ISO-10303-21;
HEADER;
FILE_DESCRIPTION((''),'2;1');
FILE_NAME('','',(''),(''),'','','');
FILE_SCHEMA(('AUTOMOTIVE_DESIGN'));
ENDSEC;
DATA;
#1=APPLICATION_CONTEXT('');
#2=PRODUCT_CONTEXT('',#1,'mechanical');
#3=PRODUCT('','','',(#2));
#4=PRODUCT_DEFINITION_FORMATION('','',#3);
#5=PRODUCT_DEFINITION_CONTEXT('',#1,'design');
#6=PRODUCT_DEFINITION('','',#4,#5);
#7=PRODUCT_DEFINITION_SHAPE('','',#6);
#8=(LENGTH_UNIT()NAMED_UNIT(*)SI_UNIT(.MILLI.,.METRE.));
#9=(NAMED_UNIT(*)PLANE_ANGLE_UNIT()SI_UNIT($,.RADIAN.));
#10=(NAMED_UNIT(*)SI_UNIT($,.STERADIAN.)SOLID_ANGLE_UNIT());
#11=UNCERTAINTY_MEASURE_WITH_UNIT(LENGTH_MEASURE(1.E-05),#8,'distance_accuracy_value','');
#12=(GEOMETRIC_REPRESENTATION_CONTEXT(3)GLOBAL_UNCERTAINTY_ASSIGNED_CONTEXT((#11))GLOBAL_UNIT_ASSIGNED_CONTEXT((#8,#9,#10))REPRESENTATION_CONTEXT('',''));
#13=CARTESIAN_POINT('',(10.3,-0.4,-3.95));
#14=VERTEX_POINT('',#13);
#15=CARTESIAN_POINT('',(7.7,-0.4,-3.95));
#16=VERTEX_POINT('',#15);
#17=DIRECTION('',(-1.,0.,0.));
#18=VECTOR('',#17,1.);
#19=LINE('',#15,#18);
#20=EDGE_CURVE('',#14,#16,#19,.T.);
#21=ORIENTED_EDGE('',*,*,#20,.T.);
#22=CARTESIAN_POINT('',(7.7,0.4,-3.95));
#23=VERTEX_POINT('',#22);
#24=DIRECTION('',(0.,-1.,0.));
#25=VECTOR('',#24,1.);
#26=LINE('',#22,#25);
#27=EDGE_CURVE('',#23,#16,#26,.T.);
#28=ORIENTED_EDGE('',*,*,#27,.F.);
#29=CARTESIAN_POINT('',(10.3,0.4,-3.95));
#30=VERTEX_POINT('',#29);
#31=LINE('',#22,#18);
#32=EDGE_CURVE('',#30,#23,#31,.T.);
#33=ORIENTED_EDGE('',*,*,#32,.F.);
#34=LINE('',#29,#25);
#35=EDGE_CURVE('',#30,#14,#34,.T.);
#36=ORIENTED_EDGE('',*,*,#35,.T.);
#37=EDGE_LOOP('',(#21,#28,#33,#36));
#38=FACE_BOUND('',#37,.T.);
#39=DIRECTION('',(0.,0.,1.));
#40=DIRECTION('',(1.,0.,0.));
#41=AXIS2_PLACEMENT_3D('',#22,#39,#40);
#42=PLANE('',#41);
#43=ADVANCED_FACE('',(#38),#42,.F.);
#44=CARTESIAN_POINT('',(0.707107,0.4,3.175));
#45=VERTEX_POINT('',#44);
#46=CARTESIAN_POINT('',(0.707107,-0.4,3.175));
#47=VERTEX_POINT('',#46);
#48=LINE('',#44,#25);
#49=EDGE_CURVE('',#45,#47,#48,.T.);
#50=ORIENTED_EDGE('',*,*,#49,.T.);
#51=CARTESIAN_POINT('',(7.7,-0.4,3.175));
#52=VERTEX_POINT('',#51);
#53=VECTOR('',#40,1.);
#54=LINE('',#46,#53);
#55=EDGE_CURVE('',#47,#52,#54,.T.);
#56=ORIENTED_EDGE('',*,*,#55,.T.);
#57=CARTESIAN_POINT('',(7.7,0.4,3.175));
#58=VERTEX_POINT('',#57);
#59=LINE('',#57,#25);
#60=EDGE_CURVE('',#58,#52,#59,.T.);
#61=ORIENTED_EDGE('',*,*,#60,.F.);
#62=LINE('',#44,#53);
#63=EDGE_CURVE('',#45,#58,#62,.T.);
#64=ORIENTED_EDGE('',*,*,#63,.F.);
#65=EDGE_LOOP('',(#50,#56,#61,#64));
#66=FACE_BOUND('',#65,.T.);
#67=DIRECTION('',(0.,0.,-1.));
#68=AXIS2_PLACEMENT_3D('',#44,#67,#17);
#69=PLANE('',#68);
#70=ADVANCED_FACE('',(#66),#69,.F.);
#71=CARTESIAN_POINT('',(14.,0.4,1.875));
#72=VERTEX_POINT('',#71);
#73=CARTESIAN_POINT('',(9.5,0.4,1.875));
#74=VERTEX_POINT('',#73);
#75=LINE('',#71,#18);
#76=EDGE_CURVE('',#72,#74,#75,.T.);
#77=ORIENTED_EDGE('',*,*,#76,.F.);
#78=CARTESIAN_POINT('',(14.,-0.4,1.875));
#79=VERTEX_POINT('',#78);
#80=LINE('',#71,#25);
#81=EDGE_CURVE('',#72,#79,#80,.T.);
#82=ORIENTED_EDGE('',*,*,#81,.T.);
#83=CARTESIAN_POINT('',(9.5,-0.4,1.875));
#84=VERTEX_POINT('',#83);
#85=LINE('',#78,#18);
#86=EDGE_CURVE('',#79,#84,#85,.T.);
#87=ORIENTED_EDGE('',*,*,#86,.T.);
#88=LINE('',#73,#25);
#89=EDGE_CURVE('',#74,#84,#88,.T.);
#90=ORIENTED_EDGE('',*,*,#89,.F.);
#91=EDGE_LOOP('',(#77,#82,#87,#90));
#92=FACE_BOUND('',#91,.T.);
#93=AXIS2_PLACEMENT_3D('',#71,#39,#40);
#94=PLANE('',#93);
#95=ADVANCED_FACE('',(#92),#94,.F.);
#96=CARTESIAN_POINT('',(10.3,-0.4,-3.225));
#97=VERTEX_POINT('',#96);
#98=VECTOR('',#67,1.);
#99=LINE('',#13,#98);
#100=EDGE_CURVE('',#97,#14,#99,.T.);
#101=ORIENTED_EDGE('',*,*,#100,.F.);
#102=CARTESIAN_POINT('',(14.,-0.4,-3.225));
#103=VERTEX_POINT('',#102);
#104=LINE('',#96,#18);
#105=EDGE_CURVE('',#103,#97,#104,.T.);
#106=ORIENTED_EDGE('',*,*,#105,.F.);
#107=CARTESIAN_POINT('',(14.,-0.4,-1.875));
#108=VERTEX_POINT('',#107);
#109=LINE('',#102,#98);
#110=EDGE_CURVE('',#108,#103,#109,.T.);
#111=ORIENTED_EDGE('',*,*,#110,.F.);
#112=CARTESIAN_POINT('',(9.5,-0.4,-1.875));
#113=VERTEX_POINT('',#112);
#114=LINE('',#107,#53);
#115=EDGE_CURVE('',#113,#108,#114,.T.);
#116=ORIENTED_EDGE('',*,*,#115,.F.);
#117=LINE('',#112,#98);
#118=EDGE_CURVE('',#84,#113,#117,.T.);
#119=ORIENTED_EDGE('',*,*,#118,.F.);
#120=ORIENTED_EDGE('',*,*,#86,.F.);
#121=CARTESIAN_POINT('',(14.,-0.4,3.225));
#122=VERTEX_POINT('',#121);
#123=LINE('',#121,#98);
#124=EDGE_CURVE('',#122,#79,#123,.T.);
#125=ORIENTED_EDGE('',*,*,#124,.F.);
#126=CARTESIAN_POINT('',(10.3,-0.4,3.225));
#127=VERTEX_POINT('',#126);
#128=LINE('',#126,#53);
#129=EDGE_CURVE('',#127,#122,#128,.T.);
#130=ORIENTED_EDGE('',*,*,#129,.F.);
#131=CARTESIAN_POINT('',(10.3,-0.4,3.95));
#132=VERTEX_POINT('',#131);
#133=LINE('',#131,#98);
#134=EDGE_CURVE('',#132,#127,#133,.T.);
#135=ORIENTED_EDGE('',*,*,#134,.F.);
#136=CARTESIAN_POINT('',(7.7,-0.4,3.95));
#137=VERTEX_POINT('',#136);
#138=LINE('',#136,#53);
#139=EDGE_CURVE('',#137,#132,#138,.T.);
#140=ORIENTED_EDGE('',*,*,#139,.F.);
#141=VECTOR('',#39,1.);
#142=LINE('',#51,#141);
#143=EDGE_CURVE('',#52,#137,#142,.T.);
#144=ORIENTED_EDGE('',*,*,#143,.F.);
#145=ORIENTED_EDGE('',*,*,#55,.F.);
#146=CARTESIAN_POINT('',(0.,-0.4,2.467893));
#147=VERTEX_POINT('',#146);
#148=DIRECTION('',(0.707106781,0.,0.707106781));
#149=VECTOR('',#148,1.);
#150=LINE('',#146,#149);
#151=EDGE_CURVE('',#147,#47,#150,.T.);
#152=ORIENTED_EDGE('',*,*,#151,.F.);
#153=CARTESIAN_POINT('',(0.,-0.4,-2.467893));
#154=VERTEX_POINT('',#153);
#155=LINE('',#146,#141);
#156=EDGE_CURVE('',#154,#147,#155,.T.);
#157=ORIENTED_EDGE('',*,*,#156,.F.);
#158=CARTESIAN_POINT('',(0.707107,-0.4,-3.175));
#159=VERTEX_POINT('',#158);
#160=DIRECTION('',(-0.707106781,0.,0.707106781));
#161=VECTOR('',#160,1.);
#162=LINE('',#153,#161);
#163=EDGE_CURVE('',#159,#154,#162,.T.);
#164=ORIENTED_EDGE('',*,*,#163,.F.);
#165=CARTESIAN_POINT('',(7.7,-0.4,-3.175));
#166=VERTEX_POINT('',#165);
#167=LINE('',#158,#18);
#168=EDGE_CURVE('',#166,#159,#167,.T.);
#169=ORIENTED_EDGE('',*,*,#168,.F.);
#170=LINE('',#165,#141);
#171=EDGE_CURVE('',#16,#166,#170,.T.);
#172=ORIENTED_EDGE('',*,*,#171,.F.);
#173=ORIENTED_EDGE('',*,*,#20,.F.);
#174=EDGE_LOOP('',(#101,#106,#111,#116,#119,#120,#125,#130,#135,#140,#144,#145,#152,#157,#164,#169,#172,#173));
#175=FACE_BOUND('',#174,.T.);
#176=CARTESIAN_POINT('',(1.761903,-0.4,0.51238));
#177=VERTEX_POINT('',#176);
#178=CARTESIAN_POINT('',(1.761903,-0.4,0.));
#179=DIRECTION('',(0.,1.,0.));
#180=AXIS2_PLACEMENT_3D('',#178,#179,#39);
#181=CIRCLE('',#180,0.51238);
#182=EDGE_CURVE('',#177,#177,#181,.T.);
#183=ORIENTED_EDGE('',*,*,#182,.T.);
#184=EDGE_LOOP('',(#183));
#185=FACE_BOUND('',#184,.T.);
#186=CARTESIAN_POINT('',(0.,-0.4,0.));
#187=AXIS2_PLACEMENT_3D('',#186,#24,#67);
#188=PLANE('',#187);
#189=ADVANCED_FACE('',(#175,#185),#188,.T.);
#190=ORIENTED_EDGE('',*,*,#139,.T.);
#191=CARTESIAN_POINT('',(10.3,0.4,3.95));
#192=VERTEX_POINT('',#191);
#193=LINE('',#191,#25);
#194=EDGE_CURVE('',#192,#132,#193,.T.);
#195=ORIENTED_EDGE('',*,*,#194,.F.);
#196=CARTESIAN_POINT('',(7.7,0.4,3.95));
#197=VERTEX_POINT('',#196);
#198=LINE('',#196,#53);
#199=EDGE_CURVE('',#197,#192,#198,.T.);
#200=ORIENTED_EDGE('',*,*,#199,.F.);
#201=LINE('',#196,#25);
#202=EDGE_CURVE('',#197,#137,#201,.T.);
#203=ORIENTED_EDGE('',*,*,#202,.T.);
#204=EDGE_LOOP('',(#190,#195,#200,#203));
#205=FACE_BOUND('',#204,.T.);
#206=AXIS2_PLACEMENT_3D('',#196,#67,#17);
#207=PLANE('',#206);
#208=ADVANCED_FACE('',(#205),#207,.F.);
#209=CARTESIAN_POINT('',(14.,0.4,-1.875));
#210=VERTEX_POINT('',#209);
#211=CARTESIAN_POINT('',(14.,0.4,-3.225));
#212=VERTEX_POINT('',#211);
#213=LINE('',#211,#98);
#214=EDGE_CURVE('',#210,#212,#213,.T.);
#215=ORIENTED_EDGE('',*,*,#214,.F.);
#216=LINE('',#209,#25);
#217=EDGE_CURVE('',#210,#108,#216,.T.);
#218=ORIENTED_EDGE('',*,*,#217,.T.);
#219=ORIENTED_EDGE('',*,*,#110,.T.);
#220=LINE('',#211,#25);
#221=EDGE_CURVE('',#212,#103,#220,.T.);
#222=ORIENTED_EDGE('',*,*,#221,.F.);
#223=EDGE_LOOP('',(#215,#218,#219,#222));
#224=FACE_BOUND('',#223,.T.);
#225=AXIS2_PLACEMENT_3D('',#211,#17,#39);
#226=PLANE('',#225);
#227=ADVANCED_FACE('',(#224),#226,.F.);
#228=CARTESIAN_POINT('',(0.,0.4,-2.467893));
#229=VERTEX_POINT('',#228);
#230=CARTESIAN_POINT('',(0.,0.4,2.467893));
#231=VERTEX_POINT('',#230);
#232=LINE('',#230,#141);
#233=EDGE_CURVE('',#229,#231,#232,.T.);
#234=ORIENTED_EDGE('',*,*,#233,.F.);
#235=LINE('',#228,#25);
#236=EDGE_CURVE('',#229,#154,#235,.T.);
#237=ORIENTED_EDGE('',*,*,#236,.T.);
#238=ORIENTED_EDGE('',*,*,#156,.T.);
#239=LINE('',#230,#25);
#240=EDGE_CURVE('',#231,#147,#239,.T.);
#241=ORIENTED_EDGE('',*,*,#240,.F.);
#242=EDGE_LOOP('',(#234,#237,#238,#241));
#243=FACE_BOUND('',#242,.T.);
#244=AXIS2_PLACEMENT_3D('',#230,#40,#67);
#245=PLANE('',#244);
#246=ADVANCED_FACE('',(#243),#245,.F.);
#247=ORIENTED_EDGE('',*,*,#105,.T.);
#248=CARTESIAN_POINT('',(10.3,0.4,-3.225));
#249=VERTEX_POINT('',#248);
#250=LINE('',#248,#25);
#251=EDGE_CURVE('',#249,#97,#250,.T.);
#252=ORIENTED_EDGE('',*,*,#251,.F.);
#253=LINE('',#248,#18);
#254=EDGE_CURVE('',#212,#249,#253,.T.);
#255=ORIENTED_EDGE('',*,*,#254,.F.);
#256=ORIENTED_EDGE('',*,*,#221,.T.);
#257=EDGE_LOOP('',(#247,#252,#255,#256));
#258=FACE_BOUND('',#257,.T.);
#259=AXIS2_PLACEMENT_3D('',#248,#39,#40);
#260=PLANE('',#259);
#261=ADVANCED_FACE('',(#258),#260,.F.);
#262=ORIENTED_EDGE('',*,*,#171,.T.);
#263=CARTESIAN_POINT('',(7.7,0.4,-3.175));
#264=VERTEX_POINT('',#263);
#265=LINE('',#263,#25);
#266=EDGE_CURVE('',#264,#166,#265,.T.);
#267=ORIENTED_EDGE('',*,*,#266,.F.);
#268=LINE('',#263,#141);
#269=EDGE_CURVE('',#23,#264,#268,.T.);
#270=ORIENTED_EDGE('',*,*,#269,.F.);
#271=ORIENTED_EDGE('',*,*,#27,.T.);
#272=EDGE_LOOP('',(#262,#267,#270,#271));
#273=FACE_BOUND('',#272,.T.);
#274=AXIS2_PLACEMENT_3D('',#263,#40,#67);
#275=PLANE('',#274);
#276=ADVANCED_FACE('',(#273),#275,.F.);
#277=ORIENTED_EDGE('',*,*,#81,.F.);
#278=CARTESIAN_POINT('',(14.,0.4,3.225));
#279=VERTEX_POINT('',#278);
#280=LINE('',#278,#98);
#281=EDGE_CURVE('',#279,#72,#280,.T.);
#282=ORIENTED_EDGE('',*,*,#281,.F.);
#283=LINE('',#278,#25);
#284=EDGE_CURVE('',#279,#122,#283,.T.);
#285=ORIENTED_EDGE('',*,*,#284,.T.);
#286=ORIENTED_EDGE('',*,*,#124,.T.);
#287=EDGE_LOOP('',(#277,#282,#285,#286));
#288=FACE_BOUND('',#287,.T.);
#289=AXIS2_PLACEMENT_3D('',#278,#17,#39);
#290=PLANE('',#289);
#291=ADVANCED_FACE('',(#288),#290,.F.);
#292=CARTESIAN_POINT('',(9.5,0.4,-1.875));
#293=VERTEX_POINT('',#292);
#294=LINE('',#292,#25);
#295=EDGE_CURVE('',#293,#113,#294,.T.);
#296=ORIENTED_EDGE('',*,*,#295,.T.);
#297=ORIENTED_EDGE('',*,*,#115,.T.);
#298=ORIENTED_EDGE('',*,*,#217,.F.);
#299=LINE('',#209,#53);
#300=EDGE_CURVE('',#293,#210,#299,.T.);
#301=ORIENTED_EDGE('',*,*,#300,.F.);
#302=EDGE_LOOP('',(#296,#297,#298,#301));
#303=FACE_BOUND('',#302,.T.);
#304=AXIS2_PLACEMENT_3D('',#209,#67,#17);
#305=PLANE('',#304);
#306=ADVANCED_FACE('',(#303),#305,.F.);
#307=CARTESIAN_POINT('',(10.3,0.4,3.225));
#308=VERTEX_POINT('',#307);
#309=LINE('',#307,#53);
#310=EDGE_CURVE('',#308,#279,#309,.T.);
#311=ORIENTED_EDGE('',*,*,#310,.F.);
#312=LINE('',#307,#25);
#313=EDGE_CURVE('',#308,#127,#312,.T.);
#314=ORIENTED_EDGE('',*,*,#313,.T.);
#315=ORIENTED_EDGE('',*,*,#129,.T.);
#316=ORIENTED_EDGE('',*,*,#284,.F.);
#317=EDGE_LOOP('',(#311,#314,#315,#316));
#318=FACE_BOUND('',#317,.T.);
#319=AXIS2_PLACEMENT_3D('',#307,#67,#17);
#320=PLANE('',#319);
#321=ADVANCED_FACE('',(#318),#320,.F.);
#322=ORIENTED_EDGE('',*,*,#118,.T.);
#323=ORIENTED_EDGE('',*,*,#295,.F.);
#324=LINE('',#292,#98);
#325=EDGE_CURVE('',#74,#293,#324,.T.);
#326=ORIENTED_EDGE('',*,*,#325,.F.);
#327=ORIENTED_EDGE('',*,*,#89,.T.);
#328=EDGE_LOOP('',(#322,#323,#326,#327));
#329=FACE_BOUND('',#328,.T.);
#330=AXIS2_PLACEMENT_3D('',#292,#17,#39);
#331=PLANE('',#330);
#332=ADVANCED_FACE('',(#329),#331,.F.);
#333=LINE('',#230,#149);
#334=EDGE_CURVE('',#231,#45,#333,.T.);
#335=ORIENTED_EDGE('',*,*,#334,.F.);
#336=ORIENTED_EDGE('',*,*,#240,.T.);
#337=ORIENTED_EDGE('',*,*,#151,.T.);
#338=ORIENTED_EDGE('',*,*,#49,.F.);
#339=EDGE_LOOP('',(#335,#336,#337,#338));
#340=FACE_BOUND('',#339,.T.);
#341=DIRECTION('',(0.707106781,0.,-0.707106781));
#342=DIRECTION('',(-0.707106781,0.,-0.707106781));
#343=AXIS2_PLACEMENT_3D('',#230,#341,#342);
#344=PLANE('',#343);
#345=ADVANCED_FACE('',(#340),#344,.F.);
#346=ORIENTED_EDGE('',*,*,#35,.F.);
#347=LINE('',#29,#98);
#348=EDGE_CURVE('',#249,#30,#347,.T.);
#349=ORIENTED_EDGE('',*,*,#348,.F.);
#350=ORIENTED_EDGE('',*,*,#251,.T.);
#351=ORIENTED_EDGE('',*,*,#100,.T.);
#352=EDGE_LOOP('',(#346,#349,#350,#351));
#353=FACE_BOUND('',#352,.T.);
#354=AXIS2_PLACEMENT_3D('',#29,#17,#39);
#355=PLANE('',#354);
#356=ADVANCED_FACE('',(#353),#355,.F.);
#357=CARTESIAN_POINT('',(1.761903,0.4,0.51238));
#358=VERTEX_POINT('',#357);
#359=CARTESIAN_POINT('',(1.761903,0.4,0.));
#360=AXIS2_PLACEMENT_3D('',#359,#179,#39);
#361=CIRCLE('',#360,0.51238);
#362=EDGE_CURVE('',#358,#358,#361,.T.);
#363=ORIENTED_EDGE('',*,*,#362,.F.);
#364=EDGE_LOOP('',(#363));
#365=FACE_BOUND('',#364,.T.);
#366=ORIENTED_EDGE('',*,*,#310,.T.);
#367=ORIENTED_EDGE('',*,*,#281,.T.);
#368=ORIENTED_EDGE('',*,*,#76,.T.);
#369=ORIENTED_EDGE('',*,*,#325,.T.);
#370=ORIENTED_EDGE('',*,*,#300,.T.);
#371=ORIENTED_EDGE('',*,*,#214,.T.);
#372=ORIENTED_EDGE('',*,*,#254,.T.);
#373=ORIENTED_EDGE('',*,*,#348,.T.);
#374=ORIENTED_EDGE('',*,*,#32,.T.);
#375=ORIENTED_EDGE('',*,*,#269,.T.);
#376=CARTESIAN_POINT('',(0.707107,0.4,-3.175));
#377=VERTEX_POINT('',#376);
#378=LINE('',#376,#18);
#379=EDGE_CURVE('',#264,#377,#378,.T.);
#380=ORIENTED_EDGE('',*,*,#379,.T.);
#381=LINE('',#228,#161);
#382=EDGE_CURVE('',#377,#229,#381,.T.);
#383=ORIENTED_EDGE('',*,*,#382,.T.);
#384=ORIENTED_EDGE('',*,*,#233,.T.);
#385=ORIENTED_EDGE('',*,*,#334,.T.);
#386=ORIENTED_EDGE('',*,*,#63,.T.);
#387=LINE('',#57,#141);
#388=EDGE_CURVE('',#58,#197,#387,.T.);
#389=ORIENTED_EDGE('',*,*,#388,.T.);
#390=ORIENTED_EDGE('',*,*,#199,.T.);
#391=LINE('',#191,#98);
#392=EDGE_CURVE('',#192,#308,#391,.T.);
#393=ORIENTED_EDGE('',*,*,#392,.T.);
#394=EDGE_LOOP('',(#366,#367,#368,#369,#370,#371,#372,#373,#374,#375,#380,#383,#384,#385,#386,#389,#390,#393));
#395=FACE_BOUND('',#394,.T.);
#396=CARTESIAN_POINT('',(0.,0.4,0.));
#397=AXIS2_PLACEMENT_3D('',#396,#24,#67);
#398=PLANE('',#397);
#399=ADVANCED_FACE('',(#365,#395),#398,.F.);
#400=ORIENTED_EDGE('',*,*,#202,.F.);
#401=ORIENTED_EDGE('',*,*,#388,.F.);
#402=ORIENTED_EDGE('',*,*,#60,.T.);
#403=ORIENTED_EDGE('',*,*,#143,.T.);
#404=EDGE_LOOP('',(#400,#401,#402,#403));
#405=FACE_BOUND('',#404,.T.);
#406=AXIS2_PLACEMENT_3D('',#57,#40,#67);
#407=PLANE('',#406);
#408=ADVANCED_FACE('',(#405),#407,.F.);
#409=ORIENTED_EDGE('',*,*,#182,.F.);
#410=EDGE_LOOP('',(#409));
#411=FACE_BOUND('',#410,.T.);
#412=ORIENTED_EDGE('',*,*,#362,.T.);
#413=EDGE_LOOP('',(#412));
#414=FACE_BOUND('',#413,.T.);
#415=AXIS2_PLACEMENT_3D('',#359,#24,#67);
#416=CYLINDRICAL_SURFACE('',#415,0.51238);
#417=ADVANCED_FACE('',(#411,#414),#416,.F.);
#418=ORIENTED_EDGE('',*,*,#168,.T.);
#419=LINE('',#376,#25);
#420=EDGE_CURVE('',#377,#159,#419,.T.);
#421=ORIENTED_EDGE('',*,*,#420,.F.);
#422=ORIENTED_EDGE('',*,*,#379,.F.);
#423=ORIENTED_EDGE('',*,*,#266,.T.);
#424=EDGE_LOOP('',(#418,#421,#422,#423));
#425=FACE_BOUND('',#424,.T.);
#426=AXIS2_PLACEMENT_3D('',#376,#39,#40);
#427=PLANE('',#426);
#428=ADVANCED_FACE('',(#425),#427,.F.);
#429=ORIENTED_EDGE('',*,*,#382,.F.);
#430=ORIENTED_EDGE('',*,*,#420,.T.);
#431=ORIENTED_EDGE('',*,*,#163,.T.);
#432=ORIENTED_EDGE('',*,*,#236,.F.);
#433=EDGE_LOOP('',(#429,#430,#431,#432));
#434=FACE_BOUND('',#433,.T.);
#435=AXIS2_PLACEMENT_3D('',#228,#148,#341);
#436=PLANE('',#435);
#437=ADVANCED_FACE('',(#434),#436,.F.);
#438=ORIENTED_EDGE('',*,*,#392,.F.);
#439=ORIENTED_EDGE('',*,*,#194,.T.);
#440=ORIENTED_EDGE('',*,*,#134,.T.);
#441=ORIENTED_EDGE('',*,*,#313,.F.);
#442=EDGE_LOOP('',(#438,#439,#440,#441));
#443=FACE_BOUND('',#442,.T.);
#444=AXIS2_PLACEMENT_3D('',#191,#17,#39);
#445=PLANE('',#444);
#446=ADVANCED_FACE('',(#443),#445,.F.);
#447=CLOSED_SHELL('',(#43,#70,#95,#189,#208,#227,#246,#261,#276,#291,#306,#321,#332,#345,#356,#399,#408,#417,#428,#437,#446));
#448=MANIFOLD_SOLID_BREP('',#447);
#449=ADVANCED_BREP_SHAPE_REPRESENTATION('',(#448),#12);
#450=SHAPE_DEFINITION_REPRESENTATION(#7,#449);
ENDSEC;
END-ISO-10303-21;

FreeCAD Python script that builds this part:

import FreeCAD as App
import Part
import Sketcher

V = App.Vector


def add_polygon(sketch, points):
    """Adds a closed chain of lines whose ends are joined by coincident constraints."""
    first, n = sketch.GeometryCount, len(points)
    for a, b in zip(points, points[1:] + points[:1]):
        sketch.addGeometry(Part.LineSegment(App.Vector(*a, 0), App.Vector(*b, 0)), False)
    for i in range(n):
        sketch.addConstraint(Sketcher.Constraint("Coincident", first + i, 2, first + (i + 1) % n, 1))

doc = App.newDocument("Part")
body = doc.addObject("PartDesign::Body", "Body")

sketch1 = doc.addObject("Sketcher::SketchObject", "Sketch")
body.addObject(sketch1)
sketch1.AttachmentSupport = (doc.XZ_Plane, [""])
sketch1.MapMode = "FlatFace"
add_polygon(sketch1, [(0, -2.5), (0, 2.5), (0.7, 3.2), (7.7, 3.2), (7.7, 4), (10.3, 4), (10.3, 3.2), (14, 3.2), (14, 1.9), (9.5, 1.9), (9.5, -1.9), (14, -1.9), (14, -3.2), (10.3, -3.2), (10.3, -4), (7.7, -4), (7.7, -3.2), (0.7, -3.2)])
sketch1.addGeometry(Part.Circle(V(1.8, 0, 0), V(0, 0, 1), 0.5), False)
sketch1.addConstraint(Sketcher.Constraint("Vertical", 0))
sketch1.addConstraint(Sketcher.Constraint("Horizontal", 2))
sketch1.addConstraint(Sketcher.Constraint("Vertical", 3))
sketch1.addConstraint(Sketcher.Constraint("Horizontal", 4))
sketch1.addConstraint(Sketcher.Constraint("Vertical", 5))
sketch1.addConstraint(Sketcher.Constraint("Horizontal", 6))
sketch1.addConstraint(Sketcher.Constraint("Vertical", 7))
sketch1.addConstraint(Sketcher.Constraint("Horizontal", 8))
sketch1.addConstraint(Sketcher.Constraint("Vertical", 9))
sketch1.addConstraint(Sketcher.Constraint("Horizontal", 10))
sketch1.addConstraint(Sketcher.Constraint("Vertical", 11))
sketch1.addConstraint(Sketcher.Constraint("Horizontal", 12))
sketch1.addConstraint(Sketcher.Constraint("Vertical", 13))
sketch1.addConstraint(Sketcher.Constraint("Horizontal", 14))
sketch1.addConstraint(Sketcher.Constraint("Vertical", 15))
sketch1.addConstraint(Sketcher.Constraint("Horizontal", 16))
sketch1.addConstraint(Sketcher.Constraint("Symmetric", 0, 2, 17, 2, -1, 1))
sketch1.addConstraint(Sketcher.Constraint("Symmetric", 7, 2, 10, 2, -1))
sketch1.addConstraint(Sketcher.Constraint("Symmetric", 5, 2, 12, 2, -1))
sketch1.addConstraint(Sketcher.Constraint("Symmetric", 3, 2, 14, 2, -1))
sketch1.addConstraint(Sketcher.Constraint("Symmetric", 1, 2, 16, 2, -1))
sketch1.addConstraint(Sketcher.Constraint("PointOnObject", 18, 3, -1))
sketch1.addConstraint(Sketcher.Constraint("Perpendicular", 1, 17))
sketch1.addConstraint(Sketcher.Constraint("Distance", 1, 1.0))
sketch1.addConstraint(Sketcher.Constraint("DistanceX", 4, 1, 4, 2, 2.6))
sketch1.addConstraint(Sketcher.Constraint("DistanceX", 6, 1, 6, 2, 3.7))
sketch1.addConstraint(Sketcher.Constraint("DistanceX", 8, 2, 8, 1, 4.5))
sketch1.addConstraint(Sketcher.Constraint("DistanceX", -1, 1, 6, 2, 14.0))
sketch1.addConstraint(Sketcher.Constraint("DistanceY", 7, 2, 7, 1, 1.35))
sketch1.addConstraint(Sketcher.Constraint("DistanceY", 9, 2, 9, 1, 3.75))
sketch1.addConstraint(Sketcher.Constraint("DistanceY", 7, 2, 2, 2, 1.3))
sketch1.addConstraint(Sketcher.Constraint("Diameter", 18, 1.024761))
sketch1.addConstraint(Sketcher.Constraint("DistanceY", 3, 1, 3, 2, 0.775))
sketch1.addConstraint(Sketcher.Constraint("DistanceX", -1, 1, 18, 3, 1.761903))
pad1 = doc.addObject("PartDesign::Pad", "Pad")
body.addObject(pad1)
pad1.Profile = sketch1
pad1.Length = 0.8
pad1.Midplane = True

doc.recompute()
